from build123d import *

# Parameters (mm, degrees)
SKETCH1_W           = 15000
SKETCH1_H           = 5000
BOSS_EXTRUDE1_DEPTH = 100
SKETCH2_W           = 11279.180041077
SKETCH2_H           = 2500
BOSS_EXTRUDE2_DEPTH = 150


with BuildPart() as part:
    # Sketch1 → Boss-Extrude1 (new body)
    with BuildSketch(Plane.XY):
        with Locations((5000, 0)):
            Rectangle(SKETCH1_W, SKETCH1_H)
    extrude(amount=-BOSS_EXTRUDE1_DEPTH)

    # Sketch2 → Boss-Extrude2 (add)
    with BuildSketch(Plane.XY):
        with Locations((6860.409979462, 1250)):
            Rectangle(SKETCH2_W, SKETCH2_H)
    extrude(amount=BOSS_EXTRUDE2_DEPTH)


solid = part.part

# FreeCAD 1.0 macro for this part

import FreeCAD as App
import Part
import Sketcher

V = App.Vector
Q = App.Units.Quantity

doc = App.newDocument("Part")
body = doc.addObject("PartDesign::Body", "Body")

sketch1 = body.newObject("Sketcher::SketchObject", "Sketch")
sketch1.AttachmentSupport = (doc.getObject("XY_Plane"), [""])
sketch1.MapMode = "FlatFace"
sketch1.addGeometry(Part.LineSegment(V(-2500, 2500, 0), V(-2500, -2500, 0)), False)
sketch1.addGeometry(Part.LineSegment(V(-2500, -2500, 0), V(12500, -2500, 0)), False)
sketch1.addGeometry(Part.LineSegment(V(12500, -2500, 0), V(12500, 2500, 0)), False)
sketch1.addGeometry(Part.LineSegment(V(12500, 2500, 0), V(-2500, 2500, 0)), False)
sketch1.addConstraint(Sketcher.Constraint("Coincident", 0, 2, 1, 1))
sketch1.addConstraint(Sketcher.Constraint("Coincident", 1, 2, 2, 1))
sketch1.addConstraint(Sketcher.Constraint("Coincident", 2, 2, 3, 1))
sketch1.addConstraint(Sketcher.Constraint("Coincident", 3, 2, 0, 1))
sketch1.addConstraint(Sketcher.Constraint("Vertical", 0))
sketch1.addConstraint(Sketcher.Constraint("Horizontal", 1))
sketch1.addConstraint(Sketcher.Constraint("Vertical", 2))
sketch1.addConstraint(Sketcher.Constraint("Horizontal", 3))
sketch1.addConstraint(Sketcher.Constraint("DistanceX", 1, 1, 1, 2, Q("15000 mm")))
sketch1.addConstraint(Sketcher.Constraint("DistanceY", 0, 2, 0, 1, Q("5000 mm")))
sketch1.addConstraint(Sketcher.Constraint("DistanceX", 0, 2, -1, 1, Q("2500 mm")))
sketch1.addConstraint(Sketcher.Constraint("DistanceY", 0, 2, -1, 1, Q("2500 mm")))
pad1 = body.newObject("PartDesign::Pad", "Pad")
pad1.Profile = sketch1
pad1.Length = 100
pad1.Reversed = True

sketch2 = body.newObject("Sketcher::SketchObject", "Sketch001")
sketch2.AttachmentSupport = (doc.getObject("XY_Plane"), [""])
sketch2.MapMode = "FlatFace"
sketch2.addGeometry(Part.LineSegment(V(1221, 2500, 0), V(1221, 0, 0)), False)
sketch2.addGeometry(Part.LineSegment(V(1221, 0, 0), V(12500, 0, 0)), False)
sketch2.addGeometry(Part.LineSegment(V(12500, 0, 0), V(12500, 2500, 0)), False)
sketch2.addGeometry(Part.LineSegment(V(12500, 2500, 0), V(1221, 2500, 0)), False)
sketch2.addConstraint(Sketcher.Constraint("Coincident", 0, 2, 1, 1))
sketch2.addConstraint(Sketcher.Constraint("Coincident", 1, 2, 2, 1))
sketch2.addConstraint(Sketcher.Constraint("Coincident", 2, 2, 3, 1))
sketch2.addConstraint(Sketcher.Constraint("Coincident", 3, 2, 0, 1))
sketch2.addConstraint(Sketcher.Constraint("Vertical", 0))
sketch2.addConstraint(Sketcher.Constraint("Horizontal", 1))
sketch2.addConstraint(Sketcher.Constraint("Vertical", 2))
sketch2.addConstraint(Sketcher.Constraint("Horizontal", 3))
sketch2.addConstraint(Sketcher.Constraint("PointOnObject", 0, 2, -1))
sketch2.addConstraint(Sketcher.Constraint("DistanceY", 0, 2, 0, 1, Q("2500 mm")))
sketch2.addConstraint(Sketcher.Constraint("DistanceX", -1, 1, 1, 2, Q("12500 mm")))
sketch2.addConstraint(Sketcher.Constraint("DistanceX", 1, 1, 1, 2, Q("11279.180041 mm")))
pad2 = body.newObject("PartDesign::Pad", "Pad001")
pad2.Profile = sketch2
pad2.Length = 150

doc.recompute()
